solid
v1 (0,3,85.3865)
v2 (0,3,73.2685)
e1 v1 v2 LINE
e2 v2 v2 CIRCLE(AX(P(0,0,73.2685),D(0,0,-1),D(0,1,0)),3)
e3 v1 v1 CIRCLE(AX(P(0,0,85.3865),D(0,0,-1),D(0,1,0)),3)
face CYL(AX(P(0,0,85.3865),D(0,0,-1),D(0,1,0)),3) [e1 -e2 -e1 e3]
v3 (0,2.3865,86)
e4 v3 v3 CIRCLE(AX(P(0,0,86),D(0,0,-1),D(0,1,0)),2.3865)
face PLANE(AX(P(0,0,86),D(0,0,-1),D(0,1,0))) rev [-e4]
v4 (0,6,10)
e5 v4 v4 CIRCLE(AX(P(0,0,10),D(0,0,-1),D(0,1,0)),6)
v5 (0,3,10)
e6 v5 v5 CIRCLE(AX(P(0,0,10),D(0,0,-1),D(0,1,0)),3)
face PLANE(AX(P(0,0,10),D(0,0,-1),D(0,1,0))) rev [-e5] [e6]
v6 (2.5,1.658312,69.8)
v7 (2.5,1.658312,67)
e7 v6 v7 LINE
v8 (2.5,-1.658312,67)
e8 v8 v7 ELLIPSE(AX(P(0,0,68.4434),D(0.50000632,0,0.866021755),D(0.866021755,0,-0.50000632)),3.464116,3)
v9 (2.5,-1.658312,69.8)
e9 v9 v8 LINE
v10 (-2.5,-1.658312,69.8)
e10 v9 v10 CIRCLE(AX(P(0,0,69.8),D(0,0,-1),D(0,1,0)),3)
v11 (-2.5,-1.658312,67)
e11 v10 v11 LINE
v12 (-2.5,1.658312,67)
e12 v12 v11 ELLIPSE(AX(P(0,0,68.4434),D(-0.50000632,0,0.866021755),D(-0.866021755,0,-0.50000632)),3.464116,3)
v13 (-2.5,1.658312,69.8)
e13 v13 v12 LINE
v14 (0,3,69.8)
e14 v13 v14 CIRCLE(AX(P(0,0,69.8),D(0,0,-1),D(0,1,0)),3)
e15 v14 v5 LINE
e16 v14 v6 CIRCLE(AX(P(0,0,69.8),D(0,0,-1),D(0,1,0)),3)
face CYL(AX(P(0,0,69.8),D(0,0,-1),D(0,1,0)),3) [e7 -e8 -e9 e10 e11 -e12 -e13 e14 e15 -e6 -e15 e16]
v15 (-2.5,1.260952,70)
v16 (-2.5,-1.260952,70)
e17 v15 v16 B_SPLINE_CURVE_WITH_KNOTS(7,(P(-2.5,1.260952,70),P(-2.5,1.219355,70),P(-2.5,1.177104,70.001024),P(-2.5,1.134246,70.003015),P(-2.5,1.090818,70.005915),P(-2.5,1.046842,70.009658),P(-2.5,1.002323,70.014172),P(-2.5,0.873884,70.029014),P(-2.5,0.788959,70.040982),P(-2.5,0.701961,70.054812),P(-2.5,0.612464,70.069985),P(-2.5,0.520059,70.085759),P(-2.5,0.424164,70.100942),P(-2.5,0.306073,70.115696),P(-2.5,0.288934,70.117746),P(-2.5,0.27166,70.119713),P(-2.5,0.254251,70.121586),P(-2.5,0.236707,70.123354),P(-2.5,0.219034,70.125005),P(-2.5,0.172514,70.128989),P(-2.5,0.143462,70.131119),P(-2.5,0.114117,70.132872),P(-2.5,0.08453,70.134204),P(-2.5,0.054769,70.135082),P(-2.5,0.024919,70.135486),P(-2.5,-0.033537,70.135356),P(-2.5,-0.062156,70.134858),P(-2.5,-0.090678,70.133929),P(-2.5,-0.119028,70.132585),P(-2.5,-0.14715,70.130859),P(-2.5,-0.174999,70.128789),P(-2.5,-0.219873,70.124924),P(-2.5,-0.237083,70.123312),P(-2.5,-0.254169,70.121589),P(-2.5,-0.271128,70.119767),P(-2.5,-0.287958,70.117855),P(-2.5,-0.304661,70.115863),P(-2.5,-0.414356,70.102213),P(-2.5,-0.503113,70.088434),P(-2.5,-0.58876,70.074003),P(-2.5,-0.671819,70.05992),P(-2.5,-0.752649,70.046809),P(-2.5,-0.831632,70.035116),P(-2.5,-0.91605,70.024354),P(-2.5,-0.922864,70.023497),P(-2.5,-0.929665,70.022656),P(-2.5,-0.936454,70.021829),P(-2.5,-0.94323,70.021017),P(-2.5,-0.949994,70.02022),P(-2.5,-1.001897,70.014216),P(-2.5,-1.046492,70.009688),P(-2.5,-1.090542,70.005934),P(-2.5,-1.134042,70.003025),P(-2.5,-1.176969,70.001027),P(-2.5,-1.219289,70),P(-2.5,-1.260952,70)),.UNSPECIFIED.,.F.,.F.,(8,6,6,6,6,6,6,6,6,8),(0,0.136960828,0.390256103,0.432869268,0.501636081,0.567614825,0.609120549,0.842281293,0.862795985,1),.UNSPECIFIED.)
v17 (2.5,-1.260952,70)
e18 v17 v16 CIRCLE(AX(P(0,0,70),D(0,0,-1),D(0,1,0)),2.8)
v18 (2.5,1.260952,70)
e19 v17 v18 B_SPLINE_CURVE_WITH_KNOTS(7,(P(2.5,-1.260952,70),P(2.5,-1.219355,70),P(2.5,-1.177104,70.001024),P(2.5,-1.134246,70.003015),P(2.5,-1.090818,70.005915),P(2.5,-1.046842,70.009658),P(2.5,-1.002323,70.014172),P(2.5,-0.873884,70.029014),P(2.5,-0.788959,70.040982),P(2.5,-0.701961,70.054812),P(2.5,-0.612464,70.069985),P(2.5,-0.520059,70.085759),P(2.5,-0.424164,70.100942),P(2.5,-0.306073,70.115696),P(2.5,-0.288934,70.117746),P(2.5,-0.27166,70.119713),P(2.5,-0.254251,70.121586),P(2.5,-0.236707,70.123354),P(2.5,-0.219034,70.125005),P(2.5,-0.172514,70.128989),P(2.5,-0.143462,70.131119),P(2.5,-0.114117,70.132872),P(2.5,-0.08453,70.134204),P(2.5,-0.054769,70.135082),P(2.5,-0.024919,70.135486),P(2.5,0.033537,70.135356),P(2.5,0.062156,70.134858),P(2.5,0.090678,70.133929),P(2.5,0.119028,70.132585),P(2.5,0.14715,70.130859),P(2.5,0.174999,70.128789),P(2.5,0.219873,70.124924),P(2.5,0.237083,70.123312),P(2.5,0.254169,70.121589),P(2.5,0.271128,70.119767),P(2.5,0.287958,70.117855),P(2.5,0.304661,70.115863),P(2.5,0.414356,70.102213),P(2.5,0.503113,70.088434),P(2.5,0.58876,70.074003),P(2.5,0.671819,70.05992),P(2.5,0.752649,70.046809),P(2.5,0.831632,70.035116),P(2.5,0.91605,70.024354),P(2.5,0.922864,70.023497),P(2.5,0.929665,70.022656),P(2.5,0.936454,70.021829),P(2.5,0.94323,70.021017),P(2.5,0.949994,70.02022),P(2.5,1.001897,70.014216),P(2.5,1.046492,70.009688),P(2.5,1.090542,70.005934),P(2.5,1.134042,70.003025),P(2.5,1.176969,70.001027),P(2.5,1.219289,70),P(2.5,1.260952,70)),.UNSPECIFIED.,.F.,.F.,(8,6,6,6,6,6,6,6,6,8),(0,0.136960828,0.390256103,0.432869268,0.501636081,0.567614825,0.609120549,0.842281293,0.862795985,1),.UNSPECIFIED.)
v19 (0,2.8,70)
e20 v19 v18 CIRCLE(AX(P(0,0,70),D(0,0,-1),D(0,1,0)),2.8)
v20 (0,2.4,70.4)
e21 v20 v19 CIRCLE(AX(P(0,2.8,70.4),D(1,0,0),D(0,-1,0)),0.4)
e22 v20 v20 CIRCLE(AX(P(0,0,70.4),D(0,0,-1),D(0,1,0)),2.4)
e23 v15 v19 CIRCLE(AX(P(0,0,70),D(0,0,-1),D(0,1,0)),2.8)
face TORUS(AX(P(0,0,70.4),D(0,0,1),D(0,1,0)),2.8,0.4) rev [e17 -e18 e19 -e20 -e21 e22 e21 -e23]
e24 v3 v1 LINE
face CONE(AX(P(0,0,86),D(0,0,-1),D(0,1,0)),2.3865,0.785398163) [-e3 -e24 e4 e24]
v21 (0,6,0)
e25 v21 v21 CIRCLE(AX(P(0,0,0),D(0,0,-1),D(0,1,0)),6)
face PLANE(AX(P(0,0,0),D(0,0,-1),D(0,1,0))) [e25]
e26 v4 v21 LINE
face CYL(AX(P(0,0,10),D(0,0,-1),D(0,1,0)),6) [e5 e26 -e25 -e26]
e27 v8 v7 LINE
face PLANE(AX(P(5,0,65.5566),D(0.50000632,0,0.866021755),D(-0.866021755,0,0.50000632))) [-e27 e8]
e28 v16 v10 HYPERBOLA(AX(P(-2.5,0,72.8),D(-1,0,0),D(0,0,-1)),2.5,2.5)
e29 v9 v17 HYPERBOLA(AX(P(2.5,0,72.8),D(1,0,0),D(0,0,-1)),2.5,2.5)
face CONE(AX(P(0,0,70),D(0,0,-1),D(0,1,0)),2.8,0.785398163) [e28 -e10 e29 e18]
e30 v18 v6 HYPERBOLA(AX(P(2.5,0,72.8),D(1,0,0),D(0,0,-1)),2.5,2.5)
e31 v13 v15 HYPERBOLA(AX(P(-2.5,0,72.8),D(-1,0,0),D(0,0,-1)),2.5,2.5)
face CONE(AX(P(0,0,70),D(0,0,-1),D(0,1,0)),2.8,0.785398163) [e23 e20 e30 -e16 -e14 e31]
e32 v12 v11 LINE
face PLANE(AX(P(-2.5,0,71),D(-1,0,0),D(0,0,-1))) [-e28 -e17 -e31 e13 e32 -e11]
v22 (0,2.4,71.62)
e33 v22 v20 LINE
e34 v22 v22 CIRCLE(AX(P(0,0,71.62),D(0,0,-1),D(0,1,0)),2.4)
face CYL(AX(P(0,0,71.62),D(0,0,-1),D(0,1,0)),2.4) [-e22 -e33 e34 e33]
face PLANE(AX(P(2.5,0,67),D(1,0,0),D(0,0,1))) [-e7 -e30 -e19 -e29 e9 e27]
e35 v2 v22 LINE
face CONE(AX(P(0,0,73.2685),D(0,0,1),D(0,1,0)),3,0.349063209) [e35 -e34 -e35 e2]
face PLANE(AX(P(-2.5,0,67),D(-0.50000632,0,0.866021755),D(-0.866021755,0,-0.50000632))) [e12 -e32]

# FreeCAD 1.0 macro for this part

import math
import FreeCAD as App
import Part
import Sketcher
from FreeCAD import Vector
Q = App.Units.Quantity

doc = App.newDocument("Part")
params = doc.addObject("Spreadsheet::Sheet", "Params")
for row, (alias, value) in enumerate([
    ("sketch1_radius", "0.4 mm"),
    ("sketch1_width", "6 mm"),
    ("sketch1_width2", "3 mm"),
    ("sketch1_height", "86 mm"),
    ("sketch1_height2", "10 mm"),
    ("revolution_angle", "360 deg"),
    ("sketch2_height", "4 mm"),
    ("sketch2_width", "2.5 mm"),
    ("pocket1_length", "6 mm"),
    ("sketch3_height", "4 mm"),
    ("sketch3_width", "2.5 mm"),
    ("pocket2_length", "6 mm"),
], start=1):
    params.set(f"A{row}", alias)
    params.set(f"B{row}", "=" + value)
    params.setAlias(f"B{row}", alias)

body = doc.addObject("PartDesign::Body", "Body")

sketch1 = body.newObject("Sketcher::SketchObject", "Sketch")
sketch1.AttachmentSupport = (doc.getObject("YZ_Plane"), [""])
sketch1.MapMode = "FlatFace"
sketch1.addGeometry(Part.LineSegment(Vector(0, 86, 0), Vector(0, 0, 0)), False)
sketch1.addGeometry(Part.LineSegment(Vector(0, 0, 0), Vector(6, 0, 0)), False)
sketch1.addGeometry(Part.LineSegment(Vector(6, 0, 0), Vector(6, 10, 0)), False)
sketch1.addGeometry(Part.LineSegment(Vector(6, 10, 0), Vector(3, 10, 0)), False)
sketch1.addGeometry(Part.LineSegment(Vector(3, 10, 0), Vector(3, 69.8, 0)), False)
sketch1.addGeometry(Part.LineSegment(Vector(3, 69.8, 0), Vector(2.8, 70, 0)), False)
sketch1.addGeometry(Part.ArcOfCircle(Part.Circle(Vector(2.8, 70.4, 0), Vector(0, 0, 1), 0.4), math.radians(180), math.radians(270)), False)
sketch1.addGeometry(Part.LineSegment(Vector(2.4, 70.4, 0), Vector(2.4, 71.62, 0)), False)
sketch1.addGeometry(Part.LineSegment(Vector(2.4, 71.62, 0), Vector(3, 73.2685, 0)), False)
sketch1.addGeometry(Part.LineSegment(Vector(3, 73.2685, 0), Vector(3, 85.3865, 0)), False)
sketch1.addGeometry(Part.LineSegment(Vector(3, 85.3865, 0), Vector(2.3865, 86, 0)), False)
sketch1.addGeometry(Part.LineSegment(Vector(2.3865, 86, 0), Vector(0, 86, 0)), False)
sketch1.addConstraint(Sketcher.Constraint("Coincident", 0, 2, 1, 1))
sketch1.addConstraint(Sketcher.Constraint("Coincident", 1, 2, 2, 1))
sketch1.addConstraint(Sketcher.Constraint("Coincident", 2, 2, 3, 1))
sketch1.addConstraint(Sketcher.Constraint("Coincident", 3, 2, 4, 1))
sketch1.addConstraint(Sketcher.Constraint("Coincident", 4, 2, 5, 1))
sketch1.addConstraint(Sketcher.Constraint("Coincident", 5, 2, 6, 2))
sketch1.addConstraint(Sketcher.Constraint("Tangent", 6, 1, 7, 1))
sketch1.addConstraint(Sketcher.Constraint("Coincident", 7, 2, 8, 1))
sketch1.addConstraint(Sketcher.Constraint("Coincident", 8, 2, 9, 1))
sketch1.addConstraint(Sketcher.Constraint("Coincident", 9, 2, 10, 1))
sketch1.addConstraint(Sketcher.Constraint("Coincident", 10, 2, 11, 1))
sketch1.addConstraint(Sketcher.Constraint("Coincident", 11, 2, 0, 1))
sketch1.addConstraint(Sketcher.Constraint("Vertical", 0))
sketch1.addConstraint(Sketcher.Constraint("Horizontal", 1))
sketch1.addConstraint(Sketcher.Constraint("Vertical", 2))
sketch1.addConstraint(Sketcher.Constraint("Horizontal", 3))
sketch1.addConstraint(Sketcher.Constraint("Vertical", 4))
sketch1.addConstraint(Sketcher.Constraint("Vertical", 7))
sketch1.addConstraint(Sketcher.Constraint("Vertical", 9))
sketch1.addConstraint(Sketcher.Constraint("Horizontal", 11))
sketch1.addConstraint(Sketcher.Constraint("Coincident", 0, 2, -1, 1))
sketch1.addConstraint(Sketcher.Constraint("Parallel", 5, 10))
sketch1.addConstraint(Sketcher.Constraint("Vertical", 6, 3, 5, 2))
sketch1.addConstraint(Sketcher.Constraint("Vertical", 4, 2, 8, 2))
sketch1.addConstraint(Sketcher.Constraint("Radius", 6, Q("0.4 mm")))
sketch1.addConstraint(Sketcher.Constraint("DistanceX", 1, 1, 1, 2, Q("6 mm")))
sketch1.addConstraint(Sketcher.Constraint("DistanceX", 3, 2, 3, 1, Q("3 mm")))
sketch1.addConstraint(Sketcher.Constraint("DistanceY", 0, 2, 0, 1, Q("86 mm")))
sketch1.addConstraint(Sketcher.Constraint("DistanceY", 2, 1, 2, 2, Q("10 mm")))
sketch1.addConstraint(Sketcher.Constraint("Angle", 5, Q("135 deg")))
sketch1.addConstraint(Sketcher.Constraint("Angle", 8, Q("70.0002 deg")))
sketch1.addConstraint(Sketcher.Constraint("DistanceY", 4, 1, 4, 2, Q("59.8 mm")))
sketch1.addConstraint(Sketcher.Constraint("DistanceY", -1, 1, 5, 2, Q("70 mm")))
sketch1.addConstraint(Sketcher.Constraint("DistanceY", 7, 1, 7, 2, Q("1.22 mm")))
sketch1.addConstraint(Sketcher.Constraint("DistanceY", 9, 1, 9, 2, Q("12.118 mm")))
sketch1.setExpression("Constraints[24]", "Params.sketch1_radius")
sketch1.setExpression("Constraints[25]", "Params.sketch1_width")
sketch1.setExpression("Constraints[26]", "Params.sketch1_width2")
sketch1.setExpression("Constraints[27]", "Params.sketch1_height")
sketch1.setExpression("Constraints[28]", "Params.sketch1_height2")
revolution = body.newObject("PartDesign::Revolution", "Revolution")
revolution.Profile = sketch1
revolution.ReferenceAxis = (sketch1, ["V_Axis"])
revolution.setExpression("Angle", "Params.revolution_angle")

sketch2 = body.newObject("Sketcher::SketchObject", "Sketch001")
sketch2.AttachmentSupport = (doc.getObject("XZ_Plane"), [""])
sketch2.MapMode = "FlatFace"
sketch2.addGeometry(Part.LineSegment(Vector(-2.5, 67, 0), Vector(-5, 65.5566, 0)), False)
sketch2.addGeometry(Part.LineSegment(Vector(-5, 65.5566, 0), Vector(-5, 71, 0)), False)
sketch2.addGeometry(Part.LineSegment(Vector(-5, 71, 0), Vector(-2.5, 71, 0)), False)
sketch2.addGeometry(Part.LineSegment(Vector(-2.5, 71, 0), Vector(-2.5, 67, 0)), False)
sketch2.addConstraint(Sketcher.Constraint("Coincident", 0, 2, 1, 1))
sketch2.addConstraint(Sketcher.Constraint("Coincident", 1, 2, 2, 1))
sketch2.addConstraint(Sketcher.Constraint("Coincident", 2, 2, 3, 1))
sketch2.addConstraint(Sketcher.Constraint("Coincident", 3, 2, 0, 1))
sketch2.addConstraint(Sketcher.Constraint("Vertical", 1))
sketch2.addConstraint(Sketcher.Constraint("Horizontal", 2))
sketch2.addConstraint(Sketcher.Constraint("Vertical", 3))
sketch2.addConstraint(Sketcher.Constraint("DistanceY", 3, 2, 3, 1, Q("4 mm")))
sketch2.addConstraint(Sketcher.Constraint("Angle", 0, Q("-149.9996 deg")))
sketch2.addConstraint(Sketcher.Constraint("DistanceX", 2, 1, 2, 2, Q("2.5 mm")))
sketch2.addConstraint(Sketcher.Constraint("DistanceX", 0, 2, -1, 1, Q("5 mm")))
sketch2.addConstraint(Sketcher.Constraint("DistanceY", -1, 1, 1, 2, Q("71 mm")))
sketch2.setExpression("Constraints[7]", "Params.sketch2_height")
sketch2.setExpression("Constraints[9]", "Params.sketch2_width")
pocket1 = body.newObject("PartDesign::Pocket", "Pocket")
pocket1.Profile = sketch2
pocket1.setExpression("Length", "Params.pocket1_length")
pocket1.Midplane = True

sketch3 = body.newObject("Sketcher::SketchObject", "Sketch002")
sketch3.AttachmentSupport = (doc.getObject("XZ_Plane"), [""])
sketch3.MapMode = "FlatFace"
sketch3.addGeometry(Part.LineSegment(Vector(5, 65.5566, 0), Vector(2.5, 67, 0)), False)
sketch3.addGeometry(Part.LineSegment(Vector(2.5, 67, 0), Vector(2.5, 71, 0)), False)
sketch3.addGeometry(Part.LineSegment(Vector(2.5, 71, 0), Vector(5, 71, 0)), False)
sketch3.addGeometry(Part.LineSegment(Vector(5, 71, 0), Vector(5, 65.5566, 0)), False)
sketch3.addConstraint(Sketcher.Constraint("Coincident", 0, 2, 1, 1))
sketch3.addConstraint(Sketcher.Constraint("Coincident", 1, 2, 2, 1))
sketch3.addConstraint(Sketcher.Constraint("Coincident", 2, 2, 3, 1))
sketch3.addConstraint(Sketcher.Constraint("Coincident", 3, 2, 0, 1))
sketch3.addConstraint(Sketcher.Constraint("Vertical", 1))
sketch3.addConstraint(Sketcher.Constraint("Horizontal", 2))
sketch3.addConstraint(Sketcher.Constraint("Vertical", 3))
sketch3.addConstraint(Sketcher.Constraint("DistanceY", 1, 1, 1, 2, Q("4 mm")))
sketch3.addConstraint(Sketcher.Constraint("Angle", 0, Q("149.9996 deg")))
sketch3.addConstraint(Sketcher.Constraint("DistanceX", 2, 1, 2, 2, Q("2.5 mm")))
sketch3.addConstraint(Sketcher.Constraint("DistanceY", -1, 1, 0, 2, Q("67 mm")))
sketch3.addConstraint(Sketcher.Constraint("DistanceX", -1, 1, 2, 2, Q("5 mm")))
sketch3.setExpression("Constraints[7]", "Params.sketch3_height")
sketch3.setExpression("Constraints[9]", "Params.sketch3_width")
pocket2 = body.newObject("PartDesign::Pocket", "Pocket001")
pocket2.Profile = sketch3
pocket2.setExpression("Length", "Params.pocket2_length")
pocket2.Midplane = True

doc.recompute()
